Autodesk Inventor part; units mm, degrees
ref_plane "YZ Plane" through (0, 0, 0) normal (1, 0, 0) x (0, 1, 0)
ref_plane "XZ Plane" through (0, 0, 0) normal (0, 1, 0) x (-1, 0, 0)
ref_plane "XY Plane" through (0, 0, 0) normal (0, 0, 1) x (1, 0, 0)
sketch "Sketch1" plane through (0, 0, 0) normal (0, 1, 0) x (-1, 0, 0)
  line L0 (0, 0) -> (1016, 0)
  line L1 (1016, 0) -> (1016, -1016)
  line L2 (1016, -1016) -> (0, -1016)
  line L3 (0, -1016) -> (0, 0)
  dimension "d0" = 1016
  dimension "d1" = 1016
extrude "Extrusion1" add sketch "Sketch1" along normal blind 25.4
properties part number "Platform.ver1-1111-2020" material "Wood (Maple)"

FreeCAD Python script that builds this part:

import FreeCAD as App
import Part
import Sketcher
from FreeCAD import Vector
Q = App.Units.Quantity


def add_polygon(sketch, points):
    """Adds a closed chain of lines whose ends are joined by coincident constraints."""
    first, n = sketch.GeometryCount, len(points)
    for a, b in zip(points, points[1:] + points[:1]):
        sketch.addGeometry(Part.LineSegment(App.Vector(*a, 0), App.Vector(*b, 0)), False)
    for i in range(n):
        sketch.addConstraint(Sketcher.Constraint("Coincident", first + i, 2, first + (i + 1) % n, 1))

doc = App.newDocument("Part")
body = doc.addObject("PartDesign::Body", "Body")

# Sketch on XZ plane
sketch1 = body.newObject("Sketcher::SketchObject", "Sketch")
sketch1.AttachmentSupport = (doc.getObject("XZ_Plane"), [""])
sketch1.MapMode = "FlatFace"
add_polygon(sketch1, [(-1016, 0), (0, 0), (0, -1016), (-1016, -1016)])  # lines 0-3
sketch1.addConstraint(Sketcher.Constraint("Horizontal", 0))
sketch1.addConstraint(Sketcher.Constraint("Vertical", 1))
sketch1.addConstraint(Sketcher.Constraint("Horizontal", 2))
sketch1.addConstraint(Sketcher.Constraint("Vertical", 3))
sketch1.addConstraint(Sketcher.Constraint("Coincident", 0, 2, -1, 1))
sketch1.addConstraint(Sketcher.Constraint("Equal", 2, 1))
sketch1.addConstraint(Sketcher.Constraint("DistanceX", 0, 1, 0, 2, Q("40 in")))
pad1 = body.newObject("PartDesign::Pad", "Pad")
pad1.Profile = sketch1
pad1.Length = Q("1 in")
pad1.Reversed = True

doc.recompute()
